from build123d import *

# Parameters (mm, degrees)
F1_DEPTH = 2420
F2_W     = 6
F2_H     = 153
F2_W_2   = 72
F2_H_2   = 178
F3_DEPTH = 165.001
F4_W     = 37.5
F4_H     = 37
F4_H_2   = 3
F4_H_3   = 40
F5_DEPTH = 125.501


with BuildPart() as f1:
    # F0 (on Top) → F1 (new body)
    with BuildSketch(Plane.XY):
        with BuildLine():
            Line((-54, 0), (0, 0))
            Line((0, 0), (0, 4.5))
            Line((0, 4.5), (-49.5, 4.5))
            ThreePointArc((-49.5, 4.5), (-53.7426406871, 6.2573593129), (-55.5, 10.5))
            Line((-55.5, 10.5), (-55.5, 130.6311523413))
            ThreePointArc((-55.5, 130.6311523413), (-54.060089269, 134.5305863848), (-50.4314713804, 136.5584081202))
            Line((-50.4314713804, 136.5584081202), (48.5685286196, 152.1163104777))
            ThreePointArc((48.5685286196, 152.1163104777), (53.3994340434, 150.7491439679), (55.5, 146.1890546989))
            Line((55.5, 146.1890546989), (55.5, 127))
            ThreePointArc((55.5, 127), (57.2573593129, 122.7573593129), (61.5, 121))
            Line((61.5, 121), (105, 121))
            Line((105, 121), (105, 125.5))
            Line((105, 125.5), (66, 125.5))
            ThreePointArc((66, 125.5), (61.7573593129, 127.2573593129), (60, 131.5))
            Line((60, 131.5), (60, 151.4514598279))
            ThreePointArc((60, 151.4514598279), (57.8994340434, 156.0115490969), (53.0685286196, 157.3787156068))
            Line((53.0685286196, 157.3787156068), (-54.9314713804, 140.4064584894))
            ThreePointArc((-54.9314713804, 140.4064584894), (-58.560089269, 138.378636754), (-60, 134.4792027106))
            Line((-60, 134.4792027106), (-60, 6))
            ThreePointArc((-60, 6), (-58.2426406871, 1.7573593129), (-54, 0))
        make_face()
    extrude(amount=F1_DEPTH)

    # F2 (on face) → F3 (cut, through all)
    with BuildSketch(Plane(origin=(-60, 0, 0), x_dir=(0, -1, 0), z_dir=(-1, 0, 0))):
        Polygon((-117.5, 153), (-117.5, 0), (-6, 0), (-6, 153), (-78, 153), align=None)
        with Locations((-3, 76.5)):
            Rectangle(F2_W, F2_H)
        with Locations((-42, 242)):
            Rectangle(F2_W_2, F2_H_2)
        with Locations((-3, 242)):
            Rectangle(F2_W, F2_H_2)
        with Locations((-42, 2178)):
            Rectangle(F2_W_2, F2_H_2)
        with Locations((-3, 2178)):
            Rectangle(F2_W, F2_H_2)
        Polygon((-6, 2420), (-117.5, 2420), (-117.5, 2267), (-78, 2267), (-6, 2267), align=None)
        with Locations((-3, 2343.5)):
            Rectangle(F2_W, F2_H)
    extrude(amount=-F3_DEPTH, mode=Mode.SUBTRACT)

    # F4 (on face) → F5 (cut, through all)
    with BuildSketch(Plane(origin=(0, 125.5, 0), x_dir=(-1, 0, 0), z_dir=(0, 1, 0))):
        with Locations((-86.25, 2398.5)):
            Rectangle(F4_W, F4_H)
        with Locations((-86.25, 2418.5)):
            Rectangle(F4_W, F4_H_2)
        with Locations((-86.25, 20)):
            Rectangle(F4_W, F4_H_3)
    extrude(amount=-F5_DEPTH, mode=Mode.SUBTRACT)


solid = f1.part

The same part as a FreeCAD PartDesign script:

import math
import FreeCAD as App
import Part
import Sketcher

doc = App.newDocument("Part")
params = doc.addObject("Spreadsheet::Sheet", "Params")
for row, (alias, value) in enumerate([
    ("sketch1_radius", "6 mm"),
    ("sketch1_width", "54 mm"),
    ("sketch1_width2", "39 mm"),
    ("sketch1_width3", "49.5 mm"),
    ("sketch1_width4", "43.5 mm"),
    ("pad1_length", "2420 mm"),
    ("sketch2_width", "78 mm"),
    ("sketch2_height", "153 mm"),
    ("sketch2_height2", "331 mm"),
    ("sketch2_width2", "117.5 mm"),
    ("sketch3_height", "40 mm"),
    ("sketch3_width", "37.5 mm"),
], start=1):
    params.set(f"A{row}", alias)
    params.set(f"B{row}", "=" + value)
    params.setAlias(f"B{row}", alias)

body = doc.addObject("PartDesign::Body", "Body")

# Sketch on XY plane
sketch1 = body.newObject("Sketcher::SketchObject", "Sketch")
sketch1.AttachmentSupport = (doc.getObject("XY_Plane"), [""])
sketch1.MapMode = "FlatFace"
sketch1.addGeometry(Part.LineSegment(App.Vector(-54, 0, 0), App.Vector(0, 0, 0)), False)
sketch1.addGeometry(Part.LineSegment(App.Vector(0, 0, 0), App.Vector(0, 4.5, 0)), False)
sketch1.addGeometry(Part.LineSegment(App.Vector(0, 4.5, 0), App.Vector(-49.5, 4.5, 0)), False)
sketch1.addGeometry(Part.ArcOfCircle(Part.Circle(App.Vector(-49.5, 10.5, 0), App.Vector(0, 0, 1), 6), math.radians(180), math.radians(270)), False)
sketch1.addGeometry(Part.LineSegment(App.Vector(-55.5, 10.5, 0), App.Vector(-55.5, 130.6, 0)), False)
sketch1.addGeometry(Part.ArcOfCircle(Part.Circle(App.Vector(-49.5, 130.6, 0), App.Vector(0, 0, 1), 6), math.radians(99), math.radians(180)), False)
sketch1.addGeometry(Part.LineSegment(App.Vector(-50.4, 136.6, 0), App.Vector(48.6, 152.1, 0)), False)
sketch1.addGeometry(Part.ArcOfCircle(Part.Circle(App.Vector(49.5, 146.2, 0), App.Vector(0, 0, 1), 6), math.radians(0), math.radians(99)), False)
sketch1.addGeometry(Part.LineSegment(App.Vector(55.5, 146.2, 0), App.Vector(55.5, 127, 0)), False)
sketch1.addGeometry(Part.ArcOfCircle(Part.Circle(App.Vector(61.5, 127, 0), App.Vector(0, 0, 1), 6), math.radians(180), math.radians(270)), False)
sketch1.addGeometry(Part.LineSegment(App.Vector(61.5, 121, 0), App.Vector(105, 121, 0)), False)
sketch1.addGeometry(Part.LineSegment(App.Vector(105, 121, 0), App.Vector(105, 125.5, 0)), False)
sketch1.addGeometry(Part.LineSegment(App.Vector(105, 125.5, 0), App.Vector(66, 125.5, 0)), False)
sketch1.addGeometry(Part.ArcOfCircle(Part.Circle(App.Vector(66, 131.5, 0), App.Vector(0, 0, 1), 6), math.radians(180), math.radians(270)), False)
sketch1.addGeometry(Part.LineSegment(App.Vector(60, 131.5, 0), App.Vector(60, 151.5, 0)), False)
sketch1.addGeometry(Part.ArcOfCircle(Part.Circle(App.Vector(54, 151.5, 0), App.Vector(0, 0, 1), 6), math.radians(0), math.radians(99)), False)
sketch1.addGeometry(Part.LineSegment(App.Vector(53.1, 157.4, 0), App.Vector(-54.9, 140.4, 0)), False)
sketch1.addGeometry(Part.ArcOfCircle(Part.Circle(App.Vector(-54, 134.5, 0), App.Vector(0, 0, 1), 6), math.radians(99), math.radians(180)), False)
sketch1.addGeometry(Part.LineSegment(App.Vector(-60, 134.5, 0), App.Vector(-60, 6, 0)), False)
sketch1.addGeometry(Part.ArcOfCircle(Part.Circle(App.Vector(-54, 6, 0), App.Vector(0, 0, 1), 6), math.radians(180), math.radians(270)), False)
sketch1.addConstraint(Sketcher.Constraint("Coincident", 0, 2, 1, 1))
sketch1.addConstraint(Sketcher.Constraint("Coincident", 1, 2, 2, 1))
sketch1.addConstraint(Sketcher.Constraint("Tangent", 2, 2, 3, 2))
sketch1.addConstraint(Sketcher.Constraint("Tangent", 3, 1, 4, 1))
sketch1.addConstraint(Sketcher.Constraint("Tangent", 4, 2, 5, 2))
sketch1.addConstraint(Sketcher.Constraint("Tangent", 5, 1, 6, 1))
sketch1.addConstraint(Sketcher.Constraint("Tangent", 6, 2, 7, 2))
sketch1.addConstraint(Sketcher.Constraint("Tangent", 7, 1, 8, 1))
sketch1.addConstraint(Sketcher.Constraint("Tangent", 8, 2, 9, 1))
sketch1.addConstraint(Sketcher.Constraint("Tangent", 9, 2, 10, 1))
sketch1.addConstraint(Sketcher.Constraint("Coincident", 10, 2, 11, 1))
sketch1.addConstraint(Sketcher.Constraint("Coincident", 11, 2, 12, 1))
sketch1.addConstraint(Sketcher.Constraint("Tangent", 12, 2, 13, 2))
sketch1.addConstraint(Sketcher.Constraint("Tangent", 13, 1, 14, 1))
sketch1.addConstraint(Sketcher.Constraint("Tangent", 14, 2, 15, 1))
sketch1.addConstraint(Sketcher.Constraint("Tangent", 15, 2, 16, 1))
sketch1.addConstraint(Sketcher.Constraint("Tangent", 16, 2, 17, 1))
sketch1.addConstraint(Sketcher.Constraint("Tangent", 17, 2, 18, 1))
sketch1.addConstraint(Sketcher.Constraint("Tangent", 18, 2, 19, 1))
sketch1.addConstraint(Sketcher.Constraint("Tangent", 19, 2, 0, 1))
sketch1.addConstraint(Sketcher.Constraint("Horizontal", 0))
sketch1.addConstraint(Sketcher.Constraint("Vertical", 1))
sketch1.addConstraint(Sketcher.Constraint("Horizontal", 2))
sketch1.addConstraint(Sketcher.Constraint("Vertical", 4))
sketch1.addConstraint(Sketcher.Constraint("Vertical", 8))
sketch1.addConstraint(Sketcher.Constraint("Horizontal", 10))
sketch1.addConstraint(Sketcher.Constraint("Vertical", 11))
sketch1.addConstraint(Sketcher.Constraint("Horizontal", 12))
sketch1.addConstraint(Sketcher.Constraint("Vertical", 14))
sketch1.addConstraint(Sketcher.Constraint("Vertical", 18))
sketch1.addConstraint(Sketcher.Constraint("Coincident", 0, 2, -1, 1))
sketch1.addConstraint(Sketcher.Constraint("Equal", 3, 5))
sketch1.addConstraint(Sketcher.Constraint("Equal", 5, 7))
sketch1.addConstraint(Sketcher.Constraint("Equal", 7, 9))
sketch1.addConstraint(Sketcher.Constraint("Equal", 9, 13))
sketch1.addConstraint(Sketcher.Constraint("Equal", 13, 15))
sketch1.addConstraint(Sketcher.Constraint("Equal", 15, 17))
sketch1.addConstraint(Sketcher.Constraint("Equal", 17, 19))
sketch1.addConstraint(Sketcher.Constraint("Parallel", 6, 16))
sketch1.addConstraint(Sketcher.Constraint("Equal", 1, 11))
sketch1.addConstraint(Sketcher.Constraint("Radius", 3, 6.0))
sketch1.addConstraint(Sketcher.Constraint("DistanceX", 0, 1, 0, 2, 54.0))
sketch1.addConstraint(Sketcher.Constraint("DistanceX", 12, 2, 12, 1, 39.0))
sketch1.addConstraint(Sketcher.Constraint("DistanceX", 2, 2, 2, 1, 49.5))
sketch1.addConstraint(Sketcher.Constraint("DistanceX", 10, 1, 10, 2, 43.5))
sketch1.addConstraint(Sketcher.Constraint("DistanceY", 1, 1, 1, 2, 4.5))
sketch1.addConstraint(Sketcher.Constraint("DistanceY", -1, 1, 9, 3, 127.0))
sketch1.addConstraint(Sketcher.Constraint("DistanceX", -1, 1, 13, 3, 66.0))
sketch1.addConstraint(Sketcher.Constraint("DistanceY", 14, 1, 14, 2, 19.95146))
sketch1.addConstraint(Sketcher.Constraint("Distance", 6, 100.21501))
sketch1.addConstraint(Sketcher.Constraint("DistanceY", 4, 1, 4, 2, 120.131152))
sketch1.setExpression("Constraints[40]", "Params.sketch1_radius")
sketch1.setExpression("Constraints[41]", "Params.sketch1_width")
sketch1.setExpression("Constraints[42]", "Params.sketch1_width2")
sketch1.setExpression("Constraints[43]", "Params.sketch1_width3")
sketch1.setExpression("Constraints[44]", "Params.sketch1_width4")
pad1 = body.newObject("PartDesign::Pad", "Pad")
pad1.Profile = sketch1
pad1.setExpression("Length", "Params.pad1_length")

# Sketch on YZ plane
sketch2 = body.newObject("Sketcher::SketchObject", "Sketch001")
sketch2.AttachmentSupport = (doc.getObject("YZ_Plane"), [""])
sketch2.MapMode = "FlatFace"
sketch2.AttachmentOffset = App.Placement(App.Vector(0, 0, -60), App.Rotation())
sketch2.addGeometry(Part.LineSegment(App.Vector(118, 153, 0), App.Vector(118, 0, 0)), False)
sketch2.addGeometry(Part.LineSegment(App.Vector(118, 0, 0), App.Vector(0, 0, 0)), False)
sketch2.addGeometry(Part.LineSegment(App.Vector(0, 0, 0), App.Vector(0, 331, 0)), False)
sketch2.addGeometry(Part.LineSegment(App.Vector(0, 331, 0), App.Vector(78, 331, 0)), False)
sketch2.addGeometry(Part.LineSegment(App.Vector(78, 331, 0), App.Vector(78, 153, 0)), False)
sketch2.addGeometry(Part.LineSegment(App.Vector(78, 153, 0), App.Vector(118, 153, 0)), False)
sketch2.addGeometry(Part.LineSegment(App.Vector(78, 2267, 0), App.Vector(78, 2089, 0)), False)
sketch2.addGeometry(Part.LineSegment(App.Vector(78, 2089, 0), App.Vector(0, 2089, 0)), False)
sketch2.addGeometry(Part.LineSegment(App.Vector(0, 2089, 0), App.Vector(0, 2420, 0)), False)
sketch2.addGeometry(Part.LineSegment(App.Vector(0, 2420, 0), App.Vector(118, 2420, 0)), False)
sketch2.addGeometry(Part.LineSegment(App.Vector(118, 2420, 0), App.Vector(118, 2267, 0)), False)
sketch2.addGeometry(Part.LineSegment(App.Vector(118, 2267, 0), App.Vector(78, 2267, 0)), False)
sketch2.addConstraint(Sketcher.Constraint("Coincident", 0, 2, 1, 1))
sketch2.addConstraint(Sketcher.Constraint("Coincident", 1, 2, 2, 1))
sketch2.addConstraint(Sketcher.Constraint("Coincident", 2, 2, 3, 1))
sketch2.addConstraint(Sketcher.Constraint("Coincident", 3, 2, 4, 1))
sketch2.addConstraint(Sketcher.Constraint("Coincident", 4, 2, 5, 1))
sketch2.addConstraint(Sketcher.Constraint("Coincident", 5, 2, 0, 1))
sketch2.addConstraint(Sketcher.Constraint("Coincident", 6, 2, 7, 1))
sketch2.addConstraint(Sketcher.Constraint("Coincident", 7, 2, 8, 1))
sketch2.addConstraint(Sketcher.Constraint("Coincident", 8, 2, 9, 1))
sketch2.addConstraint(Sketcher.Constraint("Coincident", 9, 2, 10, 1))
sketch2.addConstraint(Sketcher.Constraint("Coincident", 10, 2, 11, 1))
sketch2.addConstraint(Sketcher.Constraint("Coincident", 11, 2, 6, 1))
sketch2.addConstraint(Sketcher.Constraint("Vertical", 0))
sketch2.addConstraint(Sketcher.Constraint("Horizontal", 1))
sketch2.addConstraint(Sketcher.Constraint("Vertical", 2))
sketch2.addConstraint(Sketcher.Constraint("Horizontal", 3))
sketch2.addConstraint(Sketcher.Constraint("Vertical", 4))
sketch2.addConstraint(Sketcher.Constraint("Horizontal", 5))
sketch2.addConstraint(Sketcher.Constraint("Vertical", 6))
sketch2.addConstraint(Sketcher.Constraint("Horizontal", 7))
sketch2.addConstraint(Sketcher.Constraint("Vertical", 8))
sketch2.addConstraint(Sketcher.Constraint("Horizontal", 9))
sketch2.addConstraint(Sketcher.Constraint("Vertical", 10))
sketch2.addConstraint(Sketcher.Constraint("Horizontal", 11))
sketch2.addConstraint(Sketcher.Constraint("Coincident", 1, 2, -1, 1))
sketch2.addConstraint(Sketcher.Constraint("PointOnObject", 7, 2, -2))
sketch2.addConstraint(Sketcher.Constraint("Vertical", 4, 2, 6, 2))
sketch2.addConstraint(Sketcher.Constraint("Vertical", 5, 2, 9, 2))
sketch2.addConstraint(Sketcher.Constraint("Equal", 4, 6))
sketch2.addConstraint(Sketcher.Constraint("Equal", 2, 8))
sketch2.addConstraint(Sketcher.Constraint("DistanceX", 3, 1, 3, 2, 78.0))
sketch2.addConstraint(Sketcher.Constraint("DistanceY", 0, 2, 0, 1, 153.0))
sketch2.addConstraint(Sketcher.Constraint("DistanceY", 2, 1, 2, 2, 331.0))
sketch2.addConstraint(Sketcher.Constraint("DistanceX", 1, 2, 1, 1, 117.5))
sketch2.addConstraint(Sketcher.Constraint("DistanceY", -1, 1, 6, 2, 2089.0))
sketch2.setExpression("Constraints[30]", "Params.sketch2_width")
sketch2.setExpression("Constraints[31]", "Params.sketch2_height")
sketch2.setExpression("Constraints[32]", "Params.sketch2_height2")
sketch2.setExpression("Constraints[33]", "Params.sketch2_width2")
pocket1 = body.newObject("PartDesign::Pocket", "Pocket")
pocket1.Profile = sketch2
pocket1.Type = "ThroughAll"
pocket1.Reversed = True

# Sketch on XZ plane
sketch3 = body.newObject("Sketcher::SketchObject", "Sketch002")
sketch3.AttachmentSupport = (doc.getObject("XZ_Plane"), [""])
sketch3.MapMode = "FlatFace"
sketch3.AttachmentOffset = App.Placement(App.Vector(0, 0, -125.5), App.Rotation())
sketch3.addGeometry(Part.LineSegment(App.Vector(105, 2380, 0), App.Vector(68, 2380, 0)), False)
sketch3.addGeometry(Part.LineSegment(App.Vector(68, 2380, 0), App.Vector(68, 2420, 0)), False)
sketch3.addGeometry(Part.LineSegment(App.Vector(68, 2420, 0), App.Vector(105, 2420, 0)), False)
sketch3.addGeometry(Part.LineSegment(App.Vector(105, 2420, 0), App.Vector(105, 2380, 0)), False)
sketch3.addGeometry(Part.LineSegment(App.Vector(105, 40, 0), App.Vector(105, 0, 0)), False)
sketch3.addGeometry(Part.LineSegment(App.Vector(105, 0, 0), App.Vector(68, 0, 0)), False)
sketch3.addGeometry(Part.LineSegment(App.Vector(68, 0, 0), App.Vector(68, 40, 0)), False)
sketch3.addGeometry(Part.LineSegment(App.Vector(68, 40, 0), App.Vector(105, 40, 0)), False)
sketch3.addConstraint(Sketcher.Constraint("Coincident", 0, 2, 1, 1))
sketch3.addConstraint(Sketcher.Constraint("Coincident", 1, 2, 2, 1))
sketch3.addConstraint(Sketcher.Constraint("Coincident", 2, 2, 3, 1))
sketch3.addConstraint(Sketcher.Constraint("Coincident", 3, 2, 0, 1))
sketch3.addConstraint(Sketcher.Constraint("Coincident", 4, 2, 5, 1))
sketch3.addConstraint(Sketcher.Constraint("Coincident", 5, 2, 6, 1))
sketch3.addConstraint(Sketcher.Constraint("Coincident", 6, 2, 7, 1))
sketch3.addConstraint(Sketcher.Constraint("Coincident", 7, 2, 4, 1))
sketch3.addConstraint(Sketcher.Constraint("Horizontal", 0))
sketch3.addConstraint(Sketcher.Constraint("Vertical", 1))
sketch3.addConstraint(Sketcher.Constraint("Horizontal", 2))
sketch3.addConstraint(Sketcher.Constraint("Vertical", 3))
sketch3.addConstraint(Sketcher.Constraint("Vertical", 4))
sketch3.addConstraint(Sketcher.Constraint("Horizontal", 5))
sketch3.addConstraint(Sketcher.Constraint("Vertical", 6))
sketch3.addConstraint(Sketcher.Constraint("Horizontal", 7))
sketch3.addConstraint(Sketcher.Constraint("PointOnObject", 4, 2, -1))
sketch3.addConstraint(Sketcher.Constraint("Vertical", 3, 2, 4, 2))
sketch3.addConstraint(Sketcher.Constraint("Vertical", 1, 2, 5, 2))
sketch3.addConstraint(Sketcher.Constraint("Equal", 3, 4))
sketch3.addConstraint(Sketcher.Constraint("DistanceY", 1, 1, 1, 2, 40.0))
sketch3.addConstraint(Sketcher.Constraint("DistanceX", 0, 2, 0, 1, 37.5))
sketch3.addConstraint(Sketcher.Constraint("DistanceY", -1, 1, 0, 2, 2380.0))
sketch3.addConstraint(Sketcher.Constraint("DistanceX", -1, 1, 2, 2, 105.0))
sketch3.setExpression("Constraints[20]", "Params.sketch3_height")
sketch3.setExpression("Constraints[21]", "Params.sketch3_width")
pocket2 = body.newObject("PartDesign::Pocket", "Pocket001")
pocket2.Profile = sketch3
pocket2.Type = "ThroughAll"
pocket2.Reversed = True

doc.recompute()
